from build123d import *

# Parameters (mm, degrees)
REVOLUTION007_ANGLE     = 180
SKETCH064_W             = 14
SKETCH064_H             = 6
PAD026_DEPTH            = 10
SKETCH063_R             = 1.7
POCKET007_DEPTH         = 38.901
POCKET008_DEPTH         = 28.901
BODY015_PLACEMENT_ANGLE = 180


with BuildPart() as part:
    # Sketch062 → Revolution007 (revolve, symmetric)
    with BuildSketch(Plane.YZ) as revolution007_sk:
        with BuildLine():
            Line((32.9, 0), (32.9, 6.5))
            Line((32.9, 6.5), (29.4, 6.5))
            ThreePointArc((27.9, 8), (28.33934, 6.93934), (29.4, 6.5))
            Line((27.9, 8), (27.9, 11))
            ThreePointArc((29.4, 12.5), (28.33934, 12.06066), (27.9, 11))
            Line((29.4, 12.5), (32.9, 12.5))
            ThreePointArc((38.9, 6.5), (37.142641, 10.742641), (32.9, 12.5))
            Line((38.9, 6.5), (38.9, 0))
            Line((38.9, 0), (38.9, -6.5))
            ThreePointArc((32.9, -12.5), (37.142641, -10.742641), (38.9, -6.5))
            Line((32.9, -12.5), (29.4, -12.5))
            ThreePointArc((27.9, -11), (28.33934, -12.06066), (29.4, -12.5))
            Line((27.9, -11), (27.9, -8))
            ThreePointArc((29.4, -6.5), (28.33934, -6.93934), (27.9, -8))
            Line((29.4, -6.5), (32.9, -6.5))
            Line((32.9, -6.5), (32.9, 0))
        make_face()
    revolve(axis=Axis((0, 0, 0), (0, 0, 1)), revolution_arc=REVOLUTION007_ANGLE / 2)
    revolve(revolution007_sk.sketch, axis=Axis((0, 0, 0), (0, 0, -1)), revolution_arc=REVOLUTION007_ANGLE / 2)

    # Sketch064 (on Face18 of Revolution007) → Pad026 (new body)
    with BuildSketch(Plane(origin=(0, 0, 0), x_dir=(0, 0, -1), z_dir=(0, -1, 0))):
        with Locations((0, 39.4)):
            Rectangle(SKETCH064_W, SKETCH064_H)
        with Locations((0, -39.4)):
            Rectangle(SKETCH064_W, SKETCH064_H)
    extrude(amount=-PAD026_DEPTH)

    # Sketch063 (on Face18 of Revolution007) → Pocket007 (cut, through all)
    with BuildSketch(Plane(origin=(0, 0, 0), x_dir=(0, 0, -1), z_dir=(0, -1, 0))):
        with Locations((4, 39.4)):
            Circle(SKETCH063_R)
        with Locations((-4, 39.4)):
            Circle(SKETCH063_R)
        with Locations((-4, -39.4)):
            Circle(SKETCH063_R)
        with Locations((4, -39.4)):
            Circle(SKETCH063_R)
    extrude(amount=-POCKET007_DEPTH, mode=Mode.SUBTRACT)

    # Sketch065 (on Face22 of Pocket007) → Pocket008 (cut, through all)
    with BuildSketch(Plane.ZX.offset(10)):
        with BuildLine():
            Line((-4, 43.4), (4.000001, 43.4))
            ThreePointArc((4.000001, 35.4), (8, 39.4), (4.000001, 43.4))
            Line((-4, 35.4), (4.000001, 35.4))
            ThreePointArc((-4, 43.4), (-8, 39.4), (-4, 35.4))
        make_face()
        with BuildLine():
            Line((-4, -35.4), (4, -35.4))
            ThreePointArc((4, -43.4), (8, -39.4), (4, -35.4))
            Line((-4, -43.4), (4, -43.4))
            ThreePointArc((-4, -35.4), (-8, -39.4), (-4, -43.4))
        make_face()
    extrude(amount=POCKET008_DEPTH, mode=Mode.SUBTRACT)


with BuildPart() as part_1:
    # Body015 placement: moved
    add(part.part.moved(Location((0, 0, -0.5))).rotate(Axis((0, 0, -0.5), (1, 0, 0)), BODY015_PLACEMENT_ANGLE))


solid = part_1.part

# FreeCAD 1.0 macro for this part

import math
import FreeCAD as App
import Part
import Sketcher

V = App.Vector

doc = App.newDocument("Part")
body = doc.addObject("PartDesign::Body", "Body")

sketch1 = body.newObject("Sketcher::SketchObject", "Sketch")
sketch1.AttachmentSupport = (doc.getObject("YZ_Plane"), [""])
sketch1.MapMode = "FlatFace"
sketch1.addGeometry([
    Part.LineSegment(V(29.4, 6.5, 0), V(32.9, 6.5, 0)),
    Part.LineSegment(V(32.9, 6.5, 0), V(32.9, -6.5, 0)),
    Part.LineSegment(V(32.9, -6.5, 0), V(29.4, -6.5, 0)),
    Part.ArcOfCircle(Part.Circle(V(29.4, -8, 0), V(0, 0, 1), 1.5), math.radians(90), math.radians(180)),
    Part.LineSegment(V(27.9, -8, 0), V(27.9, -11, 0)),
    Part.ArcOfCircle(Part.Circle(V(29.4, -11, 0), V(0, 0, 1), 1.5), math.radians(-180), math.radians(-90)),
    Part.LineSegment(V(29.4, -12.5, 0), V(32.9, -12.5, 0)),
    Part.ArcOfCircle(Part.Circle(V(32.9, -6.5, 0), V(0, 0, 1), 6), math.radians(-90), math.radians(0)),
    Part.LineSegment(V(38.9, -6.5, 0), V(38.9, 6.5, 0)),
    Part.ArcOfCircle(Part.Circle(V(32.9, 6.5, 0), V(0, 0, 1), 6), math.radians(0), math.radians(90)),
    Part.LineSegment(V(32.9, 12.5, 0), V(29.4, 12.5, 0)),
    Part.ArcOfCircle(Part.Circle(V(29.4, 11, 0), V(0, 0, 1), 1.5), math.radians(90), math.radians(180)),
    Part.LineSegment(V(27.9, 11, 0), V(27.9, 8, 0)),
    Part.ArcOfCircle(Part.Circle(V(29.4, 8, 0), V(0, 0, 1), 1.5), math.radians(-180), math.radians(-90)),
], False)
sketch1.addConstraint([
    Sketcher.Constraint("Coincident", 0, 2, 1, 1),
    Sketcher.Constraint("Coincident", 1, 2, 2, 1),
    Sketcher.Constraint("Tangent", 2, 2, 3, 1),
    Sketcher.Constraint("Tangent", 3, 2, 4, 1),
    Sketcher.Constraint("Tangent", 4, 2, 5, 1),
    Sketcher.Constraint("Tangent", 5, 2, 6, 1),
    Sketcher.Constraint("Tangent", 6, 2, 7, 1),
    Sketcher.Constraint("Tangent", 7, 2, 8, 1),
    Sketcher.Constraint("Tangent", 8, 2, 9, 1),
    Sketcher.Constraint("Tangent", 9, 2, 10, 1),
    Sketcher.Constraint("Tangent", 10, 2, 11, 1),
    Sketcher.Constraint("Tangent", 11, 2, 12, 1),
    Sketcher.Constraint("Tangent", 12, 2, 13, 1),
    Sketcher.Constraint("Tangent", 13, 2, 0, 1),
    Sketcher.Constraint("Horizontal", 0),
    Sketcher.Constraint("Vertical", 1),
    Sketcher.Constraint("Horizontal", 2),
    Sketcher.Constraint("Vertical", 4),
    Sketcher.Constraint("Horizontal", 6),
    Sketcher.Constraint("Vertical", 8),
    Sketcher.Constraint("Horizontal", 10),
    Sketcher.Constraint("Vertical", 12),
    Sketcher.Constraint("Coincident", 0, 2, 9, 3),
    Sketcher.Constraint("Coincident", 1, 2, 7, 3),
    Sketcher.Constraint("Equal", 3, 5),
    Sketcher.Constraint("Equal", 5, 11),
    Sketcher.Constraint("Equal", 11, 13),
    Sketcher.Constraint("Symmetric", 5, 3, 11, 3, -1),
    Sketcher.Constraint("Radius", 7, 5.999999),
    Sketcher.Constraint("Radius", 3, 1.500001),
    Sketcher.Constraint("DistanceY", 1, 2, 1, 1, 13.0),
    Sketcher.Constraint("DistanceX", 0, 1, 0, 2, 3.5),
    Sketcher.Constraint("DistanceX", -1, 1, 3, 3, 29.400001),
])
revolution = body.newObject("PartDesign::Revolution", "Revolution")
revolution.Profile = sketch1
revolution.ReferenceAxis = (sketch1, ["V_Axis"])
revolution.Angle = 90

sketch2 = body.newObject("Sketcher::SketchObject", "Sketch001")
sketch2.AttachmentSupport = (doc.getObject("YZ_Plane"), [""])
sketch2.MapMode = "FlatFace"
sketch2.addGeometry([
    Part.LineSegment(V(29.4, 6.5, 0), V(32.9, 6.5, 0)),
    Part.LineSegment(V(32.9, 6.5, 0), V(32.9, -6.5, 0)),
    Part.LineSegment(V(32.9, -6.5, 0), V(29.4, -6.5, 0)),
    Part.ArcOfCircle(Part.Circle(V(29.4, -8, 0), V(0, 0, 1), 1.5), math.radians(90), math.radians(180)),
    Part.LineSegment(V(27.9, -8, 0), V(27.9, -11, 0)),
    Part.ArcOfCircle(Part.Circle(V(29.4, -11, 0), V(0, 0, 1), 1.5), math.radians(-180), math.radians(-90)),
    Part.LineSegment(V(29.4, -12.5, 0), V(32.9, -12.5, 0)),
    Part.ArcOfCircle(Part.Circle(V(32.9, -6.5, 0), V(0, 0, 1), 6), math.radians(-90), math.radians(0)),
    Part.LineSegment(V(38.9, -6.5, 0), V(38.9, 6.5, 0)),
    Part.ArcOfCircle(Part.Circle(V(32.9, 6.5, 0), V(0, 0, 1), 6), math.radians(0), math.radians(90)),
    Part.LineSegment(V(32.9, 12.5, 0), V(29.4, 12.5, 0)),
    Part.ArcOfCircle(Part.Circle(V(29.4, 11, 0), V(0, 0, 1), 1.5), math.radians(90), math.radians(180)),
    Part.LineSegment(V(27.9, 11, 0), V(27.9, 8, 0)),
    Part.ArcOfCircle(Part.Circle(V(29.4, 8, 0), V(0, 0, 1), 1.5), math.radians(-180), math.radians(-90)),
], False)
sketch2.addConstraint([
    Sketcher.Constraint("Coincident", 0, 2, 1, 1),
    Sketcher.Constraint("Coincident", 1, 2, 2, 1),
    Sketcher.Constraint("Tangent", 2, 2, 3, 1),
    Sketcher.Constraint("Tangent", 3, 2, 4, 1),
    Sketcher.Constraint("Tangent", 4, 2, 5, 1),
    Sketcher.Constraint("Tangent", 5, 2, 6, 1),
    Sketcher.Constraint("Tangent", 6, 2, 7, 1),
    Sketcher.Constraint("Tangent", 7, 2, 8, 1),
    Sketcher.Constraint("Tangent", 8, 2, 9, 1),
    Sketcher.Constraint("Tangent", 9, 2, 10, 1),
    Sketcher.Constraint("Tangent", 10, 2, 11, 1),
    Sketcher.Constraint("Tangent", 11, 2, 12, 1),
    Sketcher.Constraint("Tangent", 12, 2, 13, 1),
    Sketcher.Constraint("Tangent", 13, 2, 0, 1),
    Sketcher.Constraint("Horizontal", 0),
    Sketcher.Constraint("Vertical", 1),
    Sketcher.Constraint("Horizontal", 2),
    Sketcher.Constraint("Vertical", 4),
    Sketcher.Constraint("Horizontal", 6),
    Sketcher.Constraint("Vertical", 8),
    Sketcher.Constraint("Horizontal", 10),
    Sketcher.Constraint("Vertical", 12),
    Sketcher.Constraint("Coincident", 0, 2, 9, 3),
    Sketcher.Constraint("Coincident", 1, 2, 7, 3),
    Sketcher.Constraint("Equal", 3, 5),
    Sketcher.Constraint("Equal", 5, 11),
    Sketcher.Constraint("Equal", 11, 13),
    Sketcher.Constraint("Symmetric", 5, 3, 11, 3, -1),
    Sketcher.Constraint("Radius", 7, 5.999999),
    Sketcher.Constraint("Radius", 3, 1.500001),
    Sketcher.Constraint("DistanceY", 1, 2, 1, 1, 13.0),
    Sketcher.Constraint("DistanceX", 0, 1, 0, 2, 3.5),
    Sketcher.Constraint("DistanceX", -1, 1, 3, 3, 29.400001),
])
revolution2 = body.newObject("PartDesign::Revolution", "Revolution001")
revolution2.Profile = sketch2
revolution2.ReferenceAxis = (sketch2, ["V_Axis"])
revolution2.Angle = 90
revolution2.Reversed = True

sketch3 = body.newObject("Sketcher::SketchObject", "Sketch002")
sketch3.AttachmentSupport = (doc.getObject("XZ_Plane"), [""])
sketch3.MapMode = "FlatFace"
sketch3.addGeometry([
    Part.LineSegment(V(42, 7, 0), V(36, 7, 0)),
    Part.LineSegment(V(36, 7, 0), V(36, -7, 0)),
    Part.LineSegment(V(36, -7, 0), V(42, -7, 0)),
    Part.LineSegment(V(42, -7, 0), V(42, 7, 0)),
    Part.LineSegment(V(-36, 7, 0), V(-42, 7, 0)),
    Part.LineSegment(V(-42, 7, 0), V(-42, -7, 0)),
    Part.LineSegment(V(-42, -7, 0), V(-36, -7, 0)),
    Part.LineSegment(V(-36, -7, 0), V(-36, 7, 0)),
], False)
sketch3.addConstraint([
    Sketcher.Constraint("Coincident", 0, 2, 1, 1),
    Sketcher.Constraint("Coincident", 1, 2, 2, 1),
    Sketcher.Constraint("Coincident", 2, 2, 3, 1),
    Sketcher.Constraint("Coincident", 3, 2, 0, 1),
    Sketcher.Constraint("Coincident", 4, 2, 5, 1),
    Sketcher.Constraint("Coincident", 5, 2, 6, 1),
    Sketcher.Constraint("Coincident", 6, 2, 7, 1),
    Sketcher.Constraint("Coincident", 7, 2, 4, 1),
    Sketcher.Constraint("Horizontal", 0),
    Sketcher.Constraint("Vertical", 1),
    Sketcher.Constraint("Horizontal", 2),
    Sketcher.Constraint("Vertical", 3),
    Sketcher.Constraint("Horizontal", 4),
    Sketcher.Constraint("Vertical", 5),
    Sketcher.Constraint("Horizontal", 6),
    Sketcher.Constraint("Vertical", 7),
    Sketcher.Constraint("Symmetric", 2, 2, 4, 2, -1, 1),
    Sketcher.Constraint("Symmetric", 0, 2, 6, 2, -1, 1),
    Sketcher.Constraint("Horizontal", 3, 2, 4, 2),
    Sketcher.Constraint("DistanceX", 0, 2, 0, 1, 6.0),
    Sketcher.Constraint("DistanceY", 1, 2, 1, 1, 14.0),
    Sketcher.Constraint("DistanceX", -1, 1, 0, 2, 36.4),
])
pad1 = body.newObject("PartDesign::Pad", "Pad")
pad1.Profile = sketch3
pad1.Length = 10
pad1.Reversed = True

sketch4 = body.newObject("Sketcher::SketchObject", "Sketch003")
sketch4.AttachmentSupport = (doc.getObject("XZ_Plane"), [""])
sketch4.MapMode = "FlatFace"
sketch4.addGeometry([
    Part.Circle(V(39.4, -4, 0), V(0, 0, 1), 1.7),
    Part.Circle(V(39.4, 4, 0), V(0, 0, 1), 1.7),
    Part.Circle(V(-39.4, 4, 0), V(0, 0, 1), 1.7),
    Part.Circle(V(-39.4, -4, 0), V(0, 0, 1), 1.7),
], False)
sketch4.addConstraint([
    Sketcher.Constraint("Equal", 0, 1),
    Sketcher.Constraint("Equal", 1, 2),
    Sketcher.Constraint("Equal", 2, 3),
    Sketcher.Constraint("Symmetric", 0, 3, 2, 3, -1, 1),
    Sketcher.Constraint("Symmetric", 1, 3, 3, 3, -1, 1),
    Sketcher.Constraint("Symmetric", 1, 3, 2, 3, -2),
    Sketcher.Constraint("Diameter", 0, 3.4),
    Sketcher.Constraint("DistanceY", 0, 3, -1, 1, 4.0),
    Sketcher.Constraint("DistanceX", -1, 1, 0, 3, 39.4),
])
pocket1 = body.newObject("PartDesign::Pocket", "Pocket")
pocket1.Profile = sketch4
pocket1.Type = "ThroughAll"

sketch5 = body.newObject("Sketcher::SketchObject", "Sketch004")
sketch5.AttachmentSupport = (doc.getObject("XZ_Plane"), [""])
sketch5.MapMode = "FlatFace"
sketch5.AttachmentOffset = App.Placement(V(0, 0, -10), App.Rotation())
sketch5.addGeometry([
    Part.LineSegment(V(43.4, 4, 0), V(43.4, -4, 0)),
    Part.ArcOfCircle(Part.Circle(V(39.4, -4, 0), V(0, 0, 1), 4), math.radians(180), math.radians(360)),
    Part.LineSegment(V(35.4, -4, 0), V(35.4, 4, 0)),
    Part.ArcOfCircle(Part.Circle(V(39.4, 4, 0), V(0, 0, 1), 4), math.radians(0), math.radians(180)),
    Part.LineSegment(V(-35.4, 4, 0), V(-35.4, -4, 0)),
    Part.ArcOfCircle(Part.Circle(V(-39.4, -4, 0), V(0, 0, 1), 4), math.radians(180), math.radians(360)),
    Part.LineSegment(V(-43.4, -4, 0), V(-43.4, 4, 0)),
    Part.ArcOfCircle(Part.Circle(V(-39.4, 4, 0), V(0, 0, 1), 4), math.radians(0), math.radians(180)),
], False)
sketch5.addConstraint([
    Sketcher.Constraint("Tangent", 0, 2, 1, 2),
    Sketcher.Constraint("Tangent", 1, 1, 2, 1),
    Sketcher.Constraint("Tangent", 2, 2, 3, 2),
    Sketcher.Constraint("Tangent", 3, 1, 0, 1),
    Sketcher.Constraint("Tangent", 4, 2, 5, 2),
    Sketcher.Constraint("Tangent", 5, 1, 6, 1),
    Sketcher.Constraint("Tangent", 6, 2, 7, 2),
    Sketcher.Constraint("Tangent", 7, 1, 4, 1),
    Sketcher.Constraint("Vertical", 0),
    Sketcher.Constraint("Vertical", 2),
    Sketcher.Constraint("Vertical", 4),
    Sketcher.Constraint("Vertical", 6),
    Sketcher.Constraint("Equal", 3, 5),
    Sketcher.Constraint("Symmetric", 3, 3, 5, 3, -1, 1),
    Sketcher.Constraint("Horizontal", 1, 3, 5, 3),
    Sketcher.Constraint("Horizontal", 3, 3, 7, 3),
    Sketcher.Constraint("Radius", 1, 4.0),
    Sketcher.Constraint("DistanceY", 0, 2, 0, 1, 8.000001),
    Sketcher.Constraint("DistanceX", -1, 1, 1, 3, 39.4),
])
pocket2 = body.newObject("PartDesign::Pocket", "Pocket001")
pocket2.Profile = sketch5
pocket2.Type = "ThroughAll"
body2 = doc.addObject("PartDesign::Body", "Body001")
doc.recompute()

body.Placement = App.Placement(V(0, 0, -0.5), App.Rotation(V(1, 0, 0), 180))
boolean = body2.newObject("PartDesign::Boolean", "Boolean")
boolean.Type = "Fuse"
boolean.addObjects([body])

doc.recompute()
